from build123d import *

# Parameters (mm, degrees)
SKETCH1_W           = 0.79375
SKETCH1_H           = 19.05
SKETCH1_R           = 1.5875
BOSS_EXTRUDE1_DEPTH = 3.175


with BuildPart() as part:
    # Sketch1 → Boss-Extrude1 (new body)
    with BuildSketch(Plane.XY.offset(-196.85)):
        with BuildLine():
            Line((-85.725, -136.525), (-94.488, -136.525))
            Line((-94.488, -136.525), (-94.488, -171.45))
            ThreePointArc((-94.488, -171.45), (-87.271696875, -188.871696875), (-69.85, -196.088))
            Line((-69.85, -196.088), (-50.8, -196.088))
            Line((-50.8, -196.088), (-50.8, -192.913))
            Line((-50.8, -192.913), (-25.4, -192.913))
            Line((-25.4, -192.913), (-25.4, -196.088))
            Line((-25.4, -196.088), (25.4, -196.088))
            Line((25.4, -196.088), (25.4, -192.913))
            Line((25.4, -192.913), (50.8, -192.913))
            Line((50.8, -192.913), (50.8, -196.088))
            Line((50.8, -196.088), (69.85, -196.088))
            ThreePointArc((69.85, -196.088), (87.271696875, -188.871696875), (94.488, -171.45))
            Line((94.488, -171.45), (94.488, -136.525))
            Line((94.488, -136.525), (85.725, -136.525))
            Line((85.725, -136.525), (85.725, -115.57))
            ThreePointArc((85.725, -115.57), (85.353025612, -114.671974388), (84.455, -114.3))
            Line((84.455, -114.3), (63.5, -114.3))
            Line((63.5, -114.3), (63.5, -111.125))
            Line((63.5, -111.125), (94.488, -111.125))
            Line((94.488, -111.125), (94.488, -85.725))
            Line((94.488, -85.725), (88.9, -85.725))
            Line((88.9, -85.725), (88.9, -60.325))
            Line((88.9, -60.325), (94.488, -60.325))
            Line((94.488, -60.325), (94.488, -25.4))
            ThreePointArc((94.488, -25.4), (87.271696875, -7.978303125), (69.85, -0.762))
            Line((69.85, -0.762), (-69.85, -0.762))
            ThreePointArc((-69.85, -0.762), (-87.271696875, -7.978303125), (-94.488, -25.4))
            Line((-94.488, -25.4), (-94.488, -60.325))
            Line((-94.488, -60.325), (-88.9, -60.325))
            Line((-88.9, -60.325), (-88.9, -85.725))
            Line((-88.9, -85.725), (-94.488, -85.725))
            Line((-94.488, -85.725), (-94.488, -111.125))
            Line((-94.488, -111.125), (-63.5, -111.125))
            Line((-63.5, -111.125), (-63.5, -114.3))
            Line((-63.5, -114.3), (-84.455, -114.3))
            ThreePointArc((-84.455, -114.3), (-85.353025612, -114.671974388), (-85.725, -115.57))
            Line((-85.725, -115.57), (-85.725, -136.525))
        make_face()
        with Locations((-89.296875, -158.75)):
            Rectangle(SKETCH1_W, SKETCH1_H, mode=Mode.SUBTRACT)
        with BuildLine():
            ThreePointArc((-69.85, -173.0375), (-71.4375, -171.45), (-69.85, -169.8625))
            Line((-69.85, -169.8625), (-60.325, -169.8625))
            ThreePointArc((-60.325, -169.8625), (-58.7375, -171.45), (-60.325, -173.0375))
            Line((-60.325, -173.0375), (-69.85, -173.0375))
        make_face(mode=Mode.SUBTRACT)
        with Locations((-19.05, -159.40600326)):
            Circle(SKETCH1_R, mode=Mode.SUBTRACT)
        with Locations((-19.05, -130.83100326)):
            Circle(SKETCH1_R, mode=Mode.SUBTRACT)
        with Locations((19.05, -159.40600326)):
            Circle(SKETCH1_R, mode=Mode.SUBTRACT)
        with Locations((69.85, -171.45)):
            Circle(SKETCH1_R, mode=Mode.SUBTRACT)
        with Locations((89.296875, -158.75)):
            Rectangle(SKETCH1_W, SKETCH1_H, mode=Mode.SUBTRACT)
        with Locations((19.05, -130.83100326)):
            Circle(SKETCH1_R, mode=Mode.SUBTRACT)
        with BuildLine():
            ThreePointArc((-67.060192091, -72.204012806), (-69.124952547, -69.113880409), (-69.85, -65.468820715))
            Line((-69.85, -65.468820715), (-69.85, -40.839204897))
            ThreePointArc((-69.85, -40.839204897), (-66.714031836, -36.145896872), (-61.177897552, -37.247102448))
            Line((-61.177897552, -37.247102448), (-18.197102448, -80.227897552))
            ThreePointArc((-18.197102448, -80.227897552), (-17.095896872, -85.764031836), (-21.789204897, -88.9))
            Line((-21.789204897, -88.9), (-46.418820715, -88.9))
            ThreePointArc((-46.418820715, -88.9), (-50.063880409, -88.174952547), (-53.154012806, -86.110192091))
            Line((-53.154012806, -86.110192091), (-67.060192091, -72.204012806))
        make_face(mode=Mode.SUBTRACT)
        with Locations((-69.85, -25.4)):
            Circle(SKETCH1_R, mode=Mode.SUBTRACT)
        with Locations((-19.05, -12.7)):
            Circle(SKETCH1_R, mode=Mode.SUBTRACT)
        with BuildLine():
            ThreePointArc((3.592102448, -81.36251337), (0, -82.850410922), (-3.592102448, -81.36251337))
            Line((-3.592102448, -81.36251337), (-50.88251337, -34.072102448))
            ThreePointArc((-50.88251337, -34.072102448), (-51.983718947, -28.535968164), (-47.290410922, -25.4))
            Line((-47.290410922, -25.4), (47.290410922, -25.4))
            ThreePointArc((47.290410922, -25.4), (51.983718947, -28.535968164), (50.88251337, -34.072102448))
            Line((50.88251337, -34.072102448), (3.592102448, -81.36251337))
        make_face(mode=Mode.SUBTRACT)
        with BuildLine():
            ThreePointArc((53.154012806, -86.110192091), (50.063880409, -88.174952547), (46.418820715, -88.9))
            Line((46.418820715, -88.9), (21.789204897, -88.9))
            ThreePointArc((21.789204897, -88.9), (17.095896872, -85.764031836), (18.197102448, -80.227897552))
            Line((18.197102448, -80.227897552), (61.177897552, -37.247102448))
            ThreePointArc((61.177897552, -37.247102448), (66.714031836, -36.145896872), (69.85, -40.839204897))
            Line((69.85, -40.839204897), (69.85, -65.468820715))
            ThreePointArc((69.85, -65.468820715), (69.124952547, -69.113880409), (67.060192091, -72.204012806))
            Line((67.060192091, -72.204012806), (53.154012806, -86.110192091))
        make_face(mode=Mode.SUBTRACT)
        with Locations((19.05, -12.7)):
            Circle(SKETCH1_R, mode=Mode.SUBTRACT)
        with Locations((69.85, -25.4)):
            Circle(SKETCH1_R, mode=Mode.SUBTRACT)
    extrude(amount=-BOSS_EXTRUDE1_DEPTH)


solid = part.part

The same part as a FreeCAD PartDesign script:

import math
import FreeCAD as App
import Part
import Sketcher
Q = App.Units.Quantity

doc = App.newDocument("Part")
body = doc.addObject("PartDesign::Body", "Body")

# Sketch on XY plane
sketch1 = doc.addObject("Sketcher::SketchObject", "Sketch")
body.addObject(sketch1)
sketch1.AttachmentSupport = (doc.XY_Plane, [""])
sketch1.MapMode = "FlatFace"
sketch1.AttachmentOffset = App.Placement(App.Vector(0, 0, -7.75 * 25.4), App.Rotation())
sketch1.addGeometry([
    Part.LineSegment(App.Vector(-85.725, -136.525, 0), App.Vector(-94.488, -136.525, 0)),  # 0
    Part.LineSegment(App.Vector(-94.488, -136.525, 0), App.Vector(-94.488, -171.45, 0)),  # 1
    Part.ArcOfCircle(Part.Circle(App.Vector(-69.85, -171.45, 0), App.Vector(0, 0, 1), 24.638), math.radians(180), math.radians(270)),  # 2
    Part.LineSegment(App.Vector(-69.85, -196.088, 0), App.Vector(-50.8, -196.088, 0)),  # 3
    Part.LineSegment(App.Vector(-50.8, -196.088, 0), App.Vector(-50.8, -192.913, 0)),  # 4
    Part.LineSegment(App.Vector(-50.8, -192.913, 0), App.Vector(-25.4, -192.913, 0)),  # 5
    Part.LineSegment(App.Vector(-25.4, -192.913, 0), App.Vector(-25.4, -196.088, 0)),  # 6
    Part.LineSegment(App.Vector(-25.4, -196.088, 0), App.Vector(25.4, -196.088, 0)),  # 7
    Part.LineSegment(App.Vector(25.4, -196.088, 0), App.Vector(25.4, -192.913, 0)),  # 8
    Part.LineSegment(App.Vector(25.4, -192.913, 0), App.Vector(50.8, -192.913, 0)),  # 9
    Part.LineSegment(App.Vector(50.8, -192.913, 0), App.Vector(50.8, -196.088, 0)),  # 10
    Part.LineSegment(App.Vector(50.8, -196.088, 0), App.Vector(69.85, -196.088, 0)),  # 11
    Part.ArcOfCircle(Part.Circle(App.Vector(69.85, -171.45, 0), App.Vector(0, 0, 1), 24.638), math.radians(-90), math.radians(0)),  # 12
    Part.LineSegment(App.Vector(94.488, -171.45, 0), App.Vector(94.488, -136.525, 0)),  # 13
    Part.LineSegment(App.Vector(94.488, -136.525, 0), App.Vector(85.725, -136.525, 0)),  # 14
    Part.LineSegment(App.Vector(85.725, -136.525, 0), App.Vector(85.725, -115.57, 0)),  # 15
    Part.ArcOfCircle(Part.Circle(App.Vector(84.455, -115.57, 0), App.Vector(0, 0, 1), 1.27), math.radians(0), math.radians(90)),  # 16
    Part.LineSegment(App.Vector(84.455, -114.3, 0), App.Vector(63.5, -114.3, 0)),  # 17
    Part.LineSegment(App.Vector(63.5, -114.3, 0), App.Vector(63.5, -111.125, 0)),  # 18
    Part.LineSegment(App.Vector(63.5, -111.125, 0), App.Vector(94.488, -111.125, 0)),  # 19
    Part.LineSegment(App.Vector(94.488, -111.125, 0), App.Vector(94.488, -85.725, 0)),  # 20
    Part.LineSegment(App.Vector(94.488, -85.725, 0), App.Vector(88.9, -85.725, 0)),  # 21
    Part.LineSegment(App.Vector(88.9, -85.725, 0), App.Vector(88.9, -60.325, 0)),  # 22
    Part.LineSegment(App.Vector(88.9, -60.325, 0), App.Vector(94.488, -60.325, 0)),  # 23
    Part.LineSegment(App.Vector(94.488, -60.325, 0), App.Vector(94.488, -25.4, 0)),  # 24
    Part.ArcOfCircle(Part.Circle(App.Vector(69.85, -25.4, 0), App.Vector(0, 0, 1), 24.638), math.radians(0), math.radians(90)),  # 25
    Part.LineSegment(App.Vector(69.85, -0.762, 0), App.Vector(-69.85, -0.762, 0)),  # 26
    Part.ArcOfCircle(Part.Circle(App.Vector(-69.85, -25.4, 0), App.Vector(0, 0, 1), 24.638), math.radians(90), math.radians(180)),  # 27
    Part.LineSegment(App.Vector(-94.488, -25.4, 0), App.Vector(-94.488, -60.325, 0)),  # 28
    Part.LineSegment(App.Vector(-94.488, -60.325, 0), App.Vector(-88.9, -60.325, 0)),  # 29
    Part.LineSegment(App.Vector(-88.9, -60.325, 0), App.Vector(-88.9, -85.725, 0)),  # 30
    Part.LineSegment(App.Vector(-88.9, -85.725, 0), App.Vector(-94.488, -85.725, 0)),  # 31
    Part.LineSegment(App.Vector(-94.488, -85.725, 0), App.Vector(-94.488, -111.125, 0)),  # 32
    Part.LineSegment(App.Vector(-94.488, -111.125, 0), App.Vector(-63.5, -111.125, 0)),  # 33
    Part.LineSegment(App.Vector(-63.5, -111.125, 0), App.Vector(-63.5, -114.3, 0)),  # 34
    Part.LineSegment(App.Vector(-63.5, -114.3, 0), App.Vector(-84.455, -114.3, 0)),  # 35
    Part.ArcOfCircle(Part.Circle(App.Vector(-84.455, -115.57, 0), App.Vector(0, 0, 1), 1.27), math.radians(90), math.radians(180)),  # 36
    Part.LineSegment(App.Vector(-85.725, -115.57, 0), App.Vector(-85.725, -136.525, 0)),  # 37
    Part.LineSegment(App.Vector(-88.9, -168.275, 0), App.Vector(-89.69375, -168.275, 0)),  # 38
    Part.LineSegment(App.Vector(-89.69375, -168.275, 0), App.Vector(-89.69375, -149.225, 0)),  # 39
    Part.LineSegment(App.Vector(-89.69375, -149.225, 0), App.Vector(-88.9, -149.225, 0)),  # 40
    Part.LineSegment(App.Vector(-88.9, -149.225, 0), App.Vector(-88.9, -168.275, 0)),  # 41
    Part.LineSegment(App.Vector(-60.325, -173.0375, 0), App.Vector(-69.85, -173.0375, 0)),  # 42
    Part.ArcOfCircle(Part.Circle(App.Vector(-69.85, -171.45, 0), App.Vector(0, 0, 1), 1.5875), math.radians(90), math.radians(270)),  # 43
    Part.LineSegment(App.Vector(-69.85, -169.8625, 0), App.Vector(-60.325, -169.8625, 0)),  # 44
    Part.ArcOfCircle(Part.Circle(App.Vector(-60.325, -171.45, 0), App.Vector(0, 0, 1), 1.5875), math.radians(-90), math.radians(90)),  # 45
    Part.Circle(App.Vector(-19.05, -159.406003, 0), App.Vector(0, 0, 1), 1.5875),  # 46
    Part.Circle(App.Vector(-19.05, -130.831003, 0), App.Vector(0, 0, 1), 1.5875),  # 47
    Part.Circle(App.Vector(19.05, -159.406003, 0), App.Vector(0, 0, 1), 1.5875),  # 48
    Part.Circle(App.Vector(69.85, -171.45, 0), App.Vector(0, 0, 1), 1.5875),  # 49
    Part.LineSegment(App.Vector(89.69375, -168.275, 0), App.Vector(88.9, -168.275, 0)),  # 50
    Part.LineSegment(App.Vector(88.9, -168.275, 0), App.Vector(88.9, -149.225, 0)),  # 51
    Part.LineSegment(App.Vector(88.9, -149.225, 0), App.Vector(89.69375, -149.225, 0)),  # 52
    Part.LineSegment(App.Vector(89.69375, -149.225, 0), App.Vector(89.69375, -168.275, 0)),  # 53
    Part.Circle(App.Vector(19.05, -130.831003, 0), App.Vector(0, 0, 1), 1.5875),  # 54
    Part.LineSegment(App.Vector(-53.154013, -86.110192, 0), App.Vector(-67.060192, -72.204013, 0)),  # 55
    Part.ArcOfCircle(Part.Circle(App.Vector(-60.325, -65.468821, 0), App.Vector(0, 0, 1), 9.525), math.radians(180), math.radians(225)),  # 56
    Part.LineSegment(App.Vector(-69.85, -65.468821, 0), App.Vector(-69.85, -40.839205, 0)),  # 57
    Part.ArcOfCircle(Part.Circle(App.Vector(-64.77, -40.839205, 0), App.Vector(0, 0, 1), 5.08), math.radians(45), math.radians(180)),  # 58
    Part.LineSegment(App.Vector(-61.177898, -37.247102, 0), App.Vector(-18.197102, -80.227898, 0)),  # 59
    Part.ArcOfCircle(Part.Circle(App.Vector(-21.789205, -83.82, 0), App.Vector(0, 0, 1), 5.08), math.radians(-90), math.radians(45)),  # 60
    Part.LineSegment(App.Vector(-21.789205, -88.9, 0), App.Vector(-46.418821, -88.9, 0)),  # 61
    Part.ArcOfCircle(Part.Circle(App.Vector(-46.418821, -79.375, 0), App.Vector(0, 0, 1), 9.525), math.radians(-135), math.radians(-90)),  # 62
    Part.LineSegment(App.Vector(50.882513, -34.072102, 0), App.Vector(3.592102, -81.362513, 0)),  # 63
    Part.ArcOfCircle(Part.Circle(App.Vector(0, -77.770411, 0), App.Vector(0, 0, 1), 5.08), math.radians(-135), math.radians(-45)),  # 64
    Part.LineSegment(App.Vector(-3.592102, -81.362513, 0), App.Vector(-50.882513, -34.072102, 0)),  # 65
    Part.ArcOfCircle(Part.Circle(App.Vector(-47.290411, -30.48, 0), App.Vector(0, 0, 1), 5.08), math.radians(90), math.radians(225)),  # 66
    Part.LineSegment(App.Vector(-47.290411, -25.4, 0), App.Vector(47.290411, -25.4, 0)),  # 67
    Part.ArcOfCircle(Part.Circle(App.Vector(47.290411, -30.48, 0), App.Vector(0, 0, 1), 5.08), math.radians(-45), math.radians(90)),  # 68
    Part.Circle(App.Vector(-69.85, -25.4, 0), App.Vector(0, 0, 1), 1.5875),  # 69
    Part.Circle(App.Vector(-19.05, -12.7, 0), App.Vector(0, 0, 1), 1.5875),  # 70
    Part.LineSegment(App.Vector(67.060192, -72.204013, 0), App.Vector(53.154013, -86.110192, 0)),  # 71
    Part.ArcOfCircle(Part.Circle(App.Vector(46.418821, -79.375, 0), App.Vector(0, 0, 1), 9.525), math.radians(-90), math.radians(-45)),  # 72
    Part.LineSegment(App.Vector(46.418821, -88.9, 0), App.Vector(21.789205, -88.9, 0)),  # 73
    Part.ArcOfCircle(Part.Circle(App.Vector(21.789205, -83.82, 0), App.Vector(0, 0, 1), 5.08), math.radians(135), math.radians(270)),  # 74
    Part.LineSegment(App.Vector(18.197102, -80.227898, 0), App.Vector(61.177898, -37.247102, 0)),  # 75
    Part.ArcOfCircle(Part.Circle(App.Vector(64.77, -40.839205, 0), App.Vector(0, 0, 1), 5.08), math.radians(0), math.radians(135)),  # 76
    Part.LineSegment(App.Vector(69.85, -40.839205, 0), App.Vector(69.85, -65.468821, 0)),  # 77
    Part.ArcOfCircle(Part.Circle(App.Vector(60.325, -65.468821, 0), App.Vector(0, 0, 1), 9.525), math.radians(-45), math.radians(0)),  # 78
    Part.Circle(App.Vector(19.05, -12.7, 0), App.Vector(0, 0, 1), 1.5875),  # 79
    Part.Circle(App.Vector(69.85, -25.4, 0), App.Vector(0, 0, 1), 1.5875),  # 80
], False)
sketch1.addConstraint([
    Sketcher.Constraint("Coincident", 0, 2, 1, 1),
    Sketcher.Constraint("Tangent", 1, 2, 2, 1),
    Sketcher.Constraint("Tangent", 2, 2, 3, 1),
    Sketcher.Constraint("Coincident", 3, 2, 4, 1),
    Sketcher.Constraint("Coincident", 4, 2, 5, 1),
    Sketcher.Constraint("Coincident", 5, 2, 6, 1),
    Sketcher.Constraint("Coincident", 6, 2, 7, 1),
    Sketcher.Constraint("Coincident", 7, 2, 8, 1),
    Sketcher.Constraint("Coincident", 8, 2, 9, 1),
    Sketcher.Constraint("Coincident", 9, 2, 10, 1),
    Sketcher.Constraint("Coincident", 10, 2, 11, 1),
    Sketcher.Constraint("Tangent", 11, 2, 12, 1),
    Sketcher.Constraint("Tangent", 12, 2, 13, 1),
    Sketcher.Constraint("Coincident", 13, 2, 14, 1),
    Sketcher.Constraint("Coincident", 14, 2, 15, 1),
    Sketcher.Constraint("Tangent", 15, 2, 16, 1),
    Sketcher.Constraint("Tangent", 16, 2, 17, 1),
    Sketcher.Constraint("Coincident", 17, 2, 18, 1),
    Sketcher.Constraint("Coincident", 18, 2, 19, 1),
    Sketcher.Constraint("Coincident", 19, 2, 20, 1),
    Sketcher.Constraint("Coincident", 20, 2, 21, 1),
    Sketcher.Constraint("Coincident", 21, 2, 22, 1),
    Sketcher.Constraint("Coincident", 22, 2, 23, 1),
    Sketcher.Constraint("Coincident", 23, 2, 24, 1),
    Sketcher.Constraint("Tangent", 24, 2, 25, 1),
    Sketcher.Constraint("Tangent", 25, 2, 26, 1),
    Sketcher.Constraint("Tangent", 26, 2, 27, 1),
    Sketcher.Constraint("Tangent", 27, 2, 28, 1),
    Sketcher.Constraint("Coincident", 28, 2, 29, 1),
    Sketcher.Constraint("Coincident", 29, 2, 30, 1),
    Sketcher.Constraint("Coincident", 30, 2, 31, 1),
    Sketcher.Constraint("Coincident", 31, 2, 32, 1),
    Sketcher.Constraint("Coincident", 32, 2, 33, 1),
    Sketcher.Constraint("Coincident", 33, 2, 34, 1),
    Sketcher.Constraint("Coincident", 34, 2, 35, 1),
    Sketcher.Constraint("Tangent", 35, 2, 36, 1),
    Sketcher.Constraint("Tangent", 36, 2, 37, 1),
    Sketcher.Constraint("Coincident", 37, 2, 0, 1),
    Sketcher.Constraint("Coincident", 38, 2, 39, 1),
    Sketcher.Constraint("Coincident", 39, 2, 40, 1),
    Sketcher.Constraint("Coincident", 40, 2, 41, 1),
    Sketcher.Constraint("Coincident", 41, 2, 38, 1),
    Sketcher.Constraint("Tangent", 42, 2, 43, 2),
    Sketcher.Constraint("Tangent", 43, 1, 44, 1),
    Sketcher.Constraint("Tangent", 44, 2, 45, 2),
    Sketcher.Constraint("Tangent", 45, 1, 42, 1),
    Sketcher.Constraint("Coincident", 50, 2, 51, 1),
    Sketcher.Constraint("Coincident", 51, 2, 52, 1),
    Sketcher.Constraint("Coincident", 52, 2, 53, 1),
    Sketcher.Constraint("Coincident", 53, 2, 50, 1),
    Sketcher.Constraint("Tangent", 55, 2, 56, 2),
    Sketcher.Constraint("Tangent", 56, 1, 57, 1),
    Sketcher.Constraint("Tangent", 57, 2, 58, 2),
    Sketcher.Constraint("Tangent", 58, 1, 59, 1),
    Sketcher.Constraint("Tangent", 59, 2, 60, 2),
    Sketcher.Constraint("Tangent", 60, 1, 61, 1),
    Sketcher.Constraint("Tangent", 61, 2, 62, 2),
    Sketcher.Constraint("Tangent", 62, 1, 55, 1),
    Sketcher.Constraint("Tangent", 63, 2, 64, 2),
    Sketcher.Constraint("Tangent", 64, 1, 65, 1),
    Sketcher.Constraint("Tangent", 65, 2, 66, 2),
    Sketcher.Constraint("Tangent", 66, 1, 67, 1),
    Sketcher.Constraint("Tangent", 67, 2, 68, 2),
    Sketcher.Constraint("Tangent", 68, 1, 63, 1),
    Sketcher.Constraint("Tangent", 71, 2, 72, 2),
    Sketcher.Constraint("Tangent", 72, 1, 73, 1),
    Sketcher.Constraint("Tangent", 73, 2, 74, 2),
    Sketcher.Constraint("Tangent", 74, 1, 75, 1),
    Sketcher.Constraint("Tangent", 75, 2, 76, 2),
    Sketcher.Constraint("Tangent", 76, 1, 77, 1),
    Sketcher.Constraint("Tangent", 77, 2, 78, 2),
    Sketcher.Constraint("Tangent", 78, 1, 71, 1),
    Sketcher.Constraint("Horizontal", 0),
    Sketcher.Constraint("Vertical", 1),
    Sketcher.Constraint("Horizontal", 3),
    Sketcher.Constraint("Vertical", 4),
    Sketcher.Constraint("Horizontal", 5),
    Sketcher.Constraint("Vertical", 6),
    Sketcher.Constraint("Horizontal", 7),
    Sketcher.Constraint("Vertical", 8),
    Sketcher.Constraint("Horizontal", 9),
    Sketcher.Constraint("Vertical", 10),
    Sketcher.Constraint("Horizontal", 11),
    Sketcher.Constraint("Vertical", 13),
    Sketcher.Constraint("Horizontal", 14),
    Sketcher.Constraint("Vertical", 15),
    Sketcher.Constraint("Horizontal", 17),
    Sketcher.Constraint("Vertical", 18),
    Sketcher.Constraint("Horizontal", 19),
    Sketcher.Constraint("Vertical", 20),
    Sketcher.Constraint("Horizontal", 21),
    Sketcher.Constraint("Vertical", 22),
    Sketcher.Constraint("Horizontal", 23),
    Sketcher.Constraint("Vertical", 24),
    Sketcher.Constraint("Horizontal", 26),
    Sketcher.Constraint("Vertical", 28),
    Sketcher.Constraint("Horizontal", 29),
    Sketcher.Constraint("Vertical", 30),
    Sketcher.Constraint("Horizontal", 31),
    Sketcher.Constraint("Vertical", 32),
    Sketcher.Constraint("Horizontal", 33),
    Sketcher.Constraint("Vertical", 34),
    Sketcher.Constraint("Horizontal", 35),
    Sketcher.Constraint("Vertical", 37),
    Sketcher.Constraint("Horizontal", 38),
    Sketcher.Constraint("Vertical", 39),
    Sketcher.Constraint("Horizontal", 40),
    Sketcher.Constraint("Vertical", 41),
    Sketcher.Constraint("Horizontal", 42),
    Sketcher.Constraint("Horizontal", 44),
    Sketcher.Constraint("Horizontal", 50),
    Sketcher.Constraint("Vertical", 51),
    Sketcher.Constraint("Horizontal", 52),
    Sketcher.Constraint("Vertical", 53),
    Sketcher.Constraint("Vertical", 57),
    Sketcher.Constraint("Horizontal", 61),
    Sketcher.Constraint("Horizontal", 67),
    Sketcher.Constraint("Horizontal", 73),
    Sketcher.Constraint("Vertical", 77),
    Sketcher.Constraint("Coincident", 43, 3, 2, 3),
    Sketcher.Constraint("Coincident", 49, 3, 12, 3),
    Sketcher.Constraint("Coincident", 69, 3, 27, 3),
    Sketcher.Constraint("Coincident", 80, 3, 25, 3),
    Sketcher.Constraint("Equal", 2, 12),
    Sketcher.Constraint("Equal", 12, 25),
    Sketcher.Constraint("Equal", 25, 27),
    Sketcher.Constraint("Equal", 16, 36),
    Sketcher.Constraint("Equal", 45, 46),
    Sketcher.Constraint("Equal", 46, 47),
    Sketcher.Constraint("Equal", 47, 48),
    Sketcher.Constraint("Equal", 48, 49),
    Sketcher.Constraint("Equal", 49, 54),
    Sketcher.Constraint("Equal", 58, 60),
    Sketcher.Constraint("Equal", 56, 62),
    Sketcher.Constraint("Equal", 60, 64),
    Sketcher.Constraint("Equal", 64, 66),
    Sketcher.Constraint("Equal", 66, 68),
    Sketcher.Constraint("Equal", 54, 69),
    Sketcher.Constraint("Equal", 69, 70),
    Sketcher.Constraint("Equal", 62, 72),
    Sketcher.Constraint("Equal", 68, 74),
    Sketcher.Constraint("Equal", 74, 76),
    Sketcher.Constraint("Equal", 72, 78),
    Sketcher.Constraint("Equal", 70, 79),
    Sketcher.Constraint("Equal", 79, 80),
    Sketcher.Constraint("Symmetric", 2, 3, 12, 3, -2),
    Sketcher.Constraint("Symmetric", 16, 3, 36, 3, -2),
    Sketcher.Constraint("Symmetric", 46, 3, 48, 3, -2),
    Sketcher.Constraint("Symmetric", 47, 3, 54, 3, -2),
    Sketcher.Constraint("Symmetric", 62, 3, 72, 3, -2),
    Sketcher.Constraint("Symmetric", 58, 3, 76, 3, -2),
    Sketcher.Constraint("Symmetric", 70, 3, 79, 3, -2),
    Sketcher.Constraint("Symmetric", 5, 2, 8, 2, -2),
    Sketcher.Constraint("Symmetric", 23, 2, 28, 2, -2),
    Sketcher.Constraint("Symmetric", 21, 2, 30, 2, -2),
    Sketcher.Constraint("Symmetric", 19, 2, 32, 2, -2),
    Sketcher.Constraint("Symmetric", 41, 2, 50, 2, -2),
    Sketcher.Constraint("Symmetric", 39, 2, 52, 2, -2),
    Sketcher.Constraint("Symmetric", 63, 2, 64, 1, -2),
    Sketcher.Constraint("Parallel", 55, 59),
    Sketcher.Constraint("Perpendicular", 59, 63),
    Sketcher.Constraint("Perpendicular", 63, 65),
    Sketcher.Constraint("Perpendicular", 65, 71),
    Sketcher.Constraint("Parallel", 71, 75),
    Sketcher.Constraint("Horizontal", 3, 2, 6, 2),
    Sketcher.Constraint("Horizontal", 0, 2, 13, 2),
    Sketcher.Constraint("Horizontal", 27, 2, 66, 1),
    Sketcher.Constraint("Vertical", 12, 3, 25, 3),
    Sketcher.Constraint("Vertical", 46, 3, 47, 3),
    Sketcher.Constraint("Vertical", 45, 3, 56, 3),
    Sketcher.Constraint("Vertical", 47, 3, 70, 3),
    Sketcher.Constraint("Vertical", 13, 2, 19, 2),
    Sketcher.Constraint("Vertical", 30, 2, 40, 2),
    Sketcher.Constraint("Vertical", 43, 1, 56, 1),
    Sketcher.Constraint("Equal", 5, 9),
    Sketcher.Constraint("Equal", 19, 33),
    Sketcher.Constraint("Equal", 35, 15),
    Sketcher.Constraint("Equal", 10, 18),
    Sketcher.Constraint("Equal", 9, 20),
    Sketcher.Constraint("Equal", 20, 22),
    Sketcher.Constraint("Equal", 13, 24),
    Sketcher.Constraint("Equal", 11, 39),
    Sketcher.Constraint("Radius", 58, Q("0.2 in")),
    Sketcher.Constraint("DistanceX", 5, 1, 5, 2, Q("1 in")),
    Sketcher.Constraint("DistanceX", 7, 1, 7, 2, Q("2 in")),
    Sketcher.Constraint("Radius", 2, Q("0.97 in")),
    Sketcher.Constraint("Radius", 16, Q("0.05 in")),
    Sketcher.Constraint("Diameter", 46, Q("0.125 in")),
    Sketcher.Constraint("DistanceX", 26, 2, 26, 1, Q("5.5 in")),
    Sketcher.Constraint("DistanceY", 25, 3, -1, 1, Q("1 in")),
    Sketcher.Constraint("Radius", 56, Q("0.375 in")),
    Sketcher.Constraint("DistanceX", 19, 1, 19, 2, Q("1.22 in")),
    Sketcher.Constraint("DistanceX", 21, 2, 21, 1, Q("0.22 in")),
    Sketcher.Constraint("DistanceY", 60, 3, -1, 1, Q("3.3 in")),
    Sketcher.Constraint("DistanceY", 70, 3, -1, 1, Q("0.5 in")),
    Sketcher.Constraint("DistanceY", 16, 2, -1, 1, Q("4.5 in")),
    Sketcher.Constraint("DistanceX", 0, 2, 0, 1, Q("0.345 in")),
    Sketcher.Constraint("DistanceX", 38, 2, 38, 1, Q("0.03125 in")),
    Sketcher.Constraint("DistanceY", 1, 2, 1, 1, Q("1.375 in")),
    Sketcher.Constraint("DistanceX", 46, 3, -1, 1, Q("0.75 in")),
    Sketcher.Constraint("DistanceY", 38, 2, -1, 1, Q("6.625 in")),
    Sketcher.Constraint("DistanceX", 67, 1, 67, 2, Q("94.580822 mm")),
    Sketcher.Constraint("DistanceX", 61, 2, 61, 1, Q("24.629616 mm")),
    Sketcher.Constraint("DistanceY", 56, 3, -1, 1, Q("65.468821 mm")),
    Sketcher.Constraint("DistanceY", 46, 3, -1, 1, Q("159.406003 mm")),
    Sketcher.Constraint("DistanceY", 47, 3, -1, 1, Q("130.831003 mm")),
])
pad1 = doc.addObject("PartDesign::Pad", "Pad")
body.addObject(pad1)
pad1.Profile = sketch1
pad1.Length = Q("0.125 in")
pad1.Reversed = True

doc.recompute()
